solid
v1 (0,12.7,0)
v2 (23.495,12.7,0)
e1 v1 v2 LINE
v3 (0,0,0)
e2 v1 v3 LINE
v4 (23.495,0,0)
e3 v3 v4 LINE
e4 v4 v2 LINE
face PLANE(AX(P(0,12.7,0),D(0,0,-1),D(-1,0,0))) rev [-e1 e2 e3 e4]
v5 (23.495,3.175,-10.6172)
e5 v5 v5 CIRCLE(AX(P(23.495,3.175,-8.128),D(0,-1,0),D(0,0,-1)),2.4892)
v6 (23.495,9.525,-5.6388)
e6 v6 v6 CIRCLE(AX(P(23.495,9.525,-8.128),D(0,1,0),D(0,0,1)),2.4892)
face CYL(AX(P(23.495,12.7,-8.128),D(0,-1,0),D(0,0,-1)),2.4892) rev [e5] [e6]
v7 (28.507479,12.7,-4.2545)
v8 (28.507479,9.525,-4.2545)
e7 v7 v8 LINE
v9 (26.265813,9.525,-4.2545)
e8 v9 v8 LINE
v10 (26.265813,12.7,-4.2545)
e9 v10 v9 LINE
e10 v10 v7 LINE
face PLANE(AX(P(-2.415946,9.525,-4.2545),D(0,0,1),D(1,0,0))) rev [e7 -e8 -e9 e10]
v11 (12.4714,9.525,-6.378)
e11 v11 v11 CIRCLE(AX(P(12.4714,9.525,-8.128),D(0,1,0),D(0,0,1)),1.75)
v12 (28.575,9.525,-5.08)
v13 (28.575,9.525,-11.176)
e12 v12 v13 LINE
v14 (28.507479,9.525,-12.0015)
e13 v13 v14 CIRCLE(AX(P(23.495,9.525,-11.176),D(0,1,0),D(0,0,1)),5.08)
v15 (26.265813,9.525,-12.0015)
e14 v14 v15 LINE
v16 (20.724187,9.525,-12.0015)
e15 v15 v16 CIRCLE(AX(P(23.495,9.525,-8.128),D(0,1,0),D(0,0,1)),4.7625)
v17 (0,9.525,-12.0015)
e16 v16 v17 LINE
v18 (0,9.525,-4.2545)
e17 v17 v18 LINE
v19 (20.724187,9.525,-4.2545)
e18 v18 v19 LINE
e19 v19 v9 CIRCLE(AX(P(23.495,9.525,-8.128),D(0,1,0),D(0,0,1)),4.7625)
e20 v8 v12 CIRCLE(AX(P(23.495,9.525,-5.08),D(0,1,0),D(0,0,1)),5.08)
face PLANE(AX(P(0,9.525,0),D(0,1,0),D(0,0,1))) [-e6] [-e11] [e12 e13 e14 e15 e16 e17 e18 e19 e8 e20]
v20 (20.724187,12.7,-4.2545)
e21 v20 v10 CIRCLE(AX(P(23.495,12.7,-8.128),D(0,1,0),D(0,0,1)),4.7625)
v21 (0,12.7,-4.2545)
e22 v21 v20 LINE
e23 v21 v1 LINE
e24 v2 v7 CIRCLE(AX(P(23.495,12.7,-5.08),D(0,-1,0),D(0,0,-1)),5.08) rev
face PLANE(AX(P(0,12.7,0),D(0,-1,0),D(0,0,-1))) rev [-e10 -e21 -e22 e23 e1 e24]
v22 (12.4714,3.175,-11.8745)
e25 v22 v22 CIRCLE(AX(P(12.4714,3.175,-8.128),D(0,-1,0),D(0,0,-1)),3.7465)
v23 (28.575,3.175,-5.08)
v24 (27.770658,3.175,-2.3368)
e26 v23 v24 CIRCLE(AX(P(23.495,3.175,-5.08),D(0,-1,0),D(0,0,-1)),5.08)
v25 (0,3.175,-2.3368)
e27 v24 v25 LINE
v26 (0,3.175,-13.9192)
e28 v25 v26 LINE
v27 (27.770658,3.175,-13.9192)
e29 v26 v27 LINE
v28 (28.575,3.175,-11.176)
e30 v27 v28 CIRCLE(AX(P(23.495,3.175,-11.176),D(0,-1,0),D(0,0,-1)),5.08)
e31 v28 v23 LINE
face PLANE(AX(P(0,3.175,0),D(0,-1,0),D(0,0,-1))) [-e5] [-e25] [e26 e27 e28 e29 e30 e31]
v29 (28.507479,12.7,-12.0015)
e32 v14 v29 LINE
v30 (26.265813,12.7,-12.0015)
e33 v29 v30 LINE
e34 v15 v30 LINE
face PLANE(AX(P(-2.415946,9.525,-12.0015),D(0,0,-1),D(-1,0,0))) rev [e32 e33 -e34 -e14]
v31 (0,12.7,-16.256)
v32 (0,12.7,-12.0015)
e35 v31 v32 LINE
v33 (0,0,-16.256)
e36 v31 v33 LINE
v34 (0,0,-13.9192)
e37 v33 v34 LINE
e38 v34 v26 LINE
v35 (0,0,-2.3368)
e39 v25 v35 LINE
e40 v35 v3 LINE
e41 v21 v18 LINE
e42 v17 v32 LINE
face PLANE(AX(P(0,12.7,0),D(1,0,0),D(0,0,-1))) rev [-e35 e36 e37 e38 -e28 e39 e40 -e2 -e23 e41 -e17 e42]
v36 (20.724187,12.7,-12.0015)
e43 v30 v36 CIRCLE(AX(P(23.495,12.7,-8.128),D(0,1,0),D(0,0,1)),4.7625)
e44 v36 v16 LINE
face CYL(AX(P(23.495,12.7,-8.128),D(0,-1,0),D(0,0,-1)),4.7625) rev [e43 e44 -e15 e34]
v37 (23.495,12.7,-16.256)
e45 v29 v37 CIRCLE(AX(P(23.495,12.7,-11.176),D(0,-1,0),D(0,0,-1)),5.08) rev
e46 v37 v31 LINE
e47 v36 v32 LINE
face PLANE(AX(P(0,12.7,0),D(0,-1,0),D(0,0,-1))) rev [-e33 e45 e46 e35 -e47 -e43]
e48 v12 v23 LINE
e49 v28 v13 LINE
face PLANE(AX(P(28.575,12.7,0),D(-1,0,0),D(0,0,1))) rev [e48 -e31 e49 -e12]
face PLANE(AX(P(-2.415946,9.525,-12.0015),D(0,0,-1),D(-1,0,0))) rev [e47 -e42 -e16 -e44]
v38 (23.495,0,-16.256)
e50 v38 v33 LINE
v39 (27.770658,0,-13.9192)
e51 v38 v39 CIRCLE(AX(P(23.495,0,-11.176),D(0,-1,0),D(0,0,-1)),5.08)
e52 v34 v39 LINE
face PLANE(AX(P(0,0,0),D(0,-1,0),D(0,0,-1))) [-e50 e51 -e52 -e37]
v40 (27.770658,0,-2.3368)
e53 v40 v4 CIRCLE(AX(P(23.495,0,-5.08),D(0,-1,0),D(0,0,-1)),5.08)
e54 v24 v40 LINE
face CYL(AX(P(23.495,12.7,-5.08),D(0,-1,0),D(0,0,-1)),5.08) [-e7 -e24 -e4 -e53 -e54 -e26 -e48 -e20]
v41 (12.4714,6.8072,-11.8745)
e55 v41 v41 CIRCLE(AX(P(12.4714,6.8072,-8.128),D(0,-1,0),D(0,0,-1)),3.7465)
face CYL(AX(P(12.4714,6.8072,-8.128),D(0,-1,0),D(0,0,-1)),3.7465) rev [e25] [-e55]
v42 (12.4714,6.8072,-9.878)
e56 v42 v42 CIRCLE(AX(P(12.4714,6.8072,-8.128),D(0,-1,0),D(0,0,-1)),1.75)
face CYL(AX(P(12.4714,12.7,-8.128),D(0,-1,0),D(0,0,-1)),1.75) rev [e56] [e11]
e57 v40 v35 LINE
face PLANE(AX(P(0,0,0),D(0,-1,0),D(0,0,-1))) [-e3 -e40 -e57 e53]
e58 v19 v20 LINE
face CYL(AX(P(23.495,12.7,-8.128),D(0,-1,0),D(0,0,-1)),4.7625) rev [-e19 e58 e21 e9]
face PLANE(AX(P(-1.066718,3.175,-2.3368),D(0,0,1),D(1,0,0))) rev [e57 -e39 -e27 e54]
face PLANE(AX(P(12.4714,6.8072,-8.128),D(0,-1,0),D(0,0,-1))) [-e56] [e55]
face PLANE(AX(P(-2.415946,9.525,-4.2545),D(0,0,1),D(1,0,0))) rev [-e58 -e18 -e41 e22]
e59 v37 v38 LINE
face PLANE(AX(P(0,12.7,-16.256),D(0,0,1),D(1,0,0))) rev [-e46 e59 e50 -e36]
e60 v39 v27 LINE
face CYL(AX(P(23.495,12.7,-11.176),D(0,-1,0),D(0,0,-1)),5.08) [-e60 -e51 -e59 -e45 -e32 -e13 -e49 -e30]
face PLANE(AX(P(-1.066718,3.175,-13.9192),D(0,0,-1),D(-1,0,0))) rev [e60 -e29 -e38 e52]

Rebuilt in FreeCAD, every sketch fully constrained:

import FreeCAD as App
import Part
import Sketcher
Q = App.Units.Quantity


def edges_at(feature, points):
    """Names of the edges that pass closest to the given points."""
    edges = feature.Shape.Edges
    near = lambda p: min(range(len(edges)), key=lambda i: edges[i].distToShape(Part.Vertex(*p))[0])
    return sorted({f"Edge{near(p) + 1}" for p in points})


def add_polygon(sketch, points):
    """Adds a closed chain of lines whose ends are joined by coincident constraints."""
    first, n = sketch.GeometryCount, len(points)
    for a, b in zip(points, points[1:] + points[:1]):
        sketch.addGeometry(Part.LineSegment(App.Vector(*a, 0), App.Vector(*b, 0)), False)
    for i in range(n):
        sketch.addConstraint(Sketcher.Constraint("Coincident", first + i, 2, first + (i + 1) % n, 1))

doc = App.newDocument("Part")
body = doc.addObject("PartDesign::Body", "Body")

# Sketch on XZ plane
sketch1 = doc.addObject("Sketcher::SketchObject", "Sketch")
body.addObject(sketch1)
sketch1.AttachmentSupport = (doc.XZ_Plane, [""])
sketch1.MapMode = "FlatFace"
add_polygon(sketch1, [(0, -16.256), (0, 0), (28.575, 0), (28.575, -16.256)])  # lines 0-3
sketch1.addGeometry(Part.Circle(App.Vector(12.4714, -8.128, 0), App.Vector(0, 0, 1), 1.75), False)  # 4
sketch1.addGeometry(Part.Circle(App.Vector(23.495, -8.128, 0), App.Vector(0, 0, 1), 2.4892), False)  # 5
sketch1.addConstraint(Sketcher.Constraint("Vertical", 0))
sketch1.addConstraint(Sketcher.Constraint("Horizontal", 1))
sketch1.addConstraint(Sketcher.Constraint("Vertical", 2))
sketch1.addConstraint(Sketcher.Constraint("Horizontal", 3))
sketch1.addConstraint(Sketcher.Constraint("Coincident", 0, 2, -1, 1))
sketch1.addConstraint(Sketcher.Constraint("Horizontal", 4, 3, 5, 3))
sketch1.addConstraint(Sketcher.Constraint("Diameter", 5, Q("0.196 in")))
sketch1.addConstraint(Sketcher.Constraint("DistanceY", 0, 1, 0, 2, Q("0.64 in")))
sketch1.addConstraint(Sketcher.Constraint("DistanceX", 5, 3, 1, 2, Q("0.2 in")))
sketch1.addConstraint(Sketcher.Constraint("Diameter", 4, Q("3.5 mm")))
sketch1.addConstraint(Sketcher.Constraint("DistanceX", 1, 1, 1, 2, Q("1.125 in")))
sketch1.addConstraint(Sketcher.Constraint("DistanceY", 4, 3, -1, 1, Q("0.32 in")))
sketch1.addConstraint(Sketcher.Constraint("DistanceX", -1, 1, 4, 3, Q("0.491 in")))
pad1 = doc.addObject("PartDesign::Pad", "Pad")
body.addObject(pad1)
pad1.Profile = sketch1
pad1.Length = Q("0.5 in")
pad1.Reversed = True

# Sketch on XZ plane
sketch2 = doc.addObject("Sketcher::SketchObject", "Sketch001")
body.addObject(sketch2)
sketch2.AttachmentSupport = (doc.XZ_Plane, [""])
sketch2.MapMode = "FlatFace"
sketch2.AttachmentOffset = App.Placement(App.Vector(0, 0, -0.5 * 25.4), App.Rotation())
add_polygon(sketch2, [(-2.415946, -12.0015), (-2.415946, -4.2545), (33.982108, -4.2545), (33.982108, -12.0015)])  # lines 0-3
sketch2.addConstraint(Sketcher.Constraint("Vertical", 0))
sketch2.addConstraint(Sketcher.Constraint("Horizontal", 1))
sketch2.addConstraint(Sketcher.Constraint("Vertical", 2))
sketch2.addConstraint(Sketcher.Constraint("Horizontal", 3))
sketch2.addConstraint(Sketcher.Constraint("DistanceY", 0, 1, 0, 2, Q("0.305 in")))
sketch2.addConstraint(Sketcher.Constraint("DistanceY", 0, 2, -1, 1, Q("0.1675 in")))
sketch2.addConstraint(Sketcher.Constraint("DistanceX", 1, 1, 1, 2, Q("36.398055 mm")))
sketch2.addConstraint(Sketcher.Constraint("DistanceX", -1, 1, 1, 2, Q("33.982108 mm")))
pocket1 = doc.addObject("PartDesign::Pocket", "Pocket")
body.addObject(pocket1)
pocket1.Profile = sketch2
pocket1.Length = Q("0.125 in")
pocket1.Reversed = True

# Sketch on XZ plane
sketch3 = doc.addObject("Sketcher::SketchObject", "Sketch002")
body.addObject(sketch3)
sketch3.AttachmentSupport = (doc.XZ_Plane, [""])
sketch3.MapMode = "FlatFace"
add_polygon(sketch3, [(-1.066718, -2.3368), (-1.066718, -13.9192), (31.965904, -13.9192), (31.965904, -2.3368)])  # lines 0-3
sketch3.addConstraint(Sketcher.Constraint("Vertical", 0))
sketch3.addConstraint(Sketcher.Constraint("Horizontal", 1))
sketch3.addConstraint(Sketcher.Constraint("Vertical", 2))
sketch3.addConstraint(Sketcher.Constraint("Horizontal", 3))
sketch3.addConstraint(Sketcher.Constraint("DistanceY", 0, 2, 0, 1, Q("0.456 in")))
sketch3.addConstraint(Sketcher.Constraint("DistanceY", 0, 2, -1, 1, Q("0.548 in")))
sketch3.addConstraint(Sketcher.Constraint("DistanceX", -1, 1, 1, 2, Q("1.2585002 in")))
sketch3.addConstraint(Sketcher.Constraint("DistanceX", 1, 1, 1, 2, Q("33.032622 mm")))
pocket2 = doc.addObject("PartDesign::Pocket", "Pocket001")
body.addObject(pocket2)
pocket2.Profile = sketch3
pocket2.Length = Q("0.125 in")

# Sketch on XZ plane
sketch4 = doc.addObject("Sketcher::SketchObject", "Sketch003")
body.addObject(sketch4)
sketch4.AttachmentSupport = (doc.XZ_Plane, [""])
sketch4.MapMode = "FlatFace"
sketch4.AttachmentOffset = App.Placement(App.Vector(0, 0, -0.125 * 25.4), App.Rotation())
sketch4.addGeometry(Part.Circle(App.Vector(12.4714, -8.128, 0), App.Vector(0, 0, 1), 3.7465), False)
sketch4.addConstraint(Sketcher.Constraint("Diameter", 0, Q("0.295 in")))
sketch4.addConstraint(Sketcher.Constraint("DistanceY", 0, 3, -1, 1, Q("0.32 in")))
sketch4.addConstraint(Sketcher.Constraint("DistanceX", -1, 1, 0, 3, Q("0.491 in")))
pocket3 = doc.addObject("PartDesign::Pocket", "Pocket002")
body.addObject(pocket3)
pocket3.Profile = sketch4
pocket3.Length = Q("0.143 in")
doc.recompute()

fillet = doc.addObject("PartDesign::Fillet", "Fillet")
body.addObject(fillet)
fillet.Base = (pocket3, edges_at(pocket3, [(28.575, 6.35, -16.256), (28.575, 6.35, 0)]))
fillet.Radius = Q("0.2 in")

# Sketch on XZ plane
sketch5 = doc.addObject("Sketcher::SketchObject", "Sketch004")
body.addObject(sketch5)
sketch5.AttachmentSupport = (doc.XZ_Plane, [""])
sketch5.MapMode = "FlatFace"
sketch5.AttachmentOffset = App.Placement(App.Vector(0, 0, -0.375 * 25.4), App.Rotation())
sketch5.addGeometry(Part.Circle(App.Vector(23.495, -8.128, 0), App.Vector(0, 0, 1), 4.7625), False)
sketch5.addConstraint(Sketcher.Constraint("Diameter", 0, Q("0.375 in")))
sketch5.addConstraint(Sketcher.Constraint("DistanceY", 0, 3, -1, 1, Q("0.32 in")))
sketch5.addConstraint(Sketcher.Constraint("DistanceX", -1, 1, 0, 3, Q("0.925 in")))
pocket4 = doc.addObject("PartDesign::Pocket", "Pocket003")
body.addObject(pocket4)
pocket4.Profile = sketch5
pocket4.Type = "ThroughAll"

doc.recompute()
